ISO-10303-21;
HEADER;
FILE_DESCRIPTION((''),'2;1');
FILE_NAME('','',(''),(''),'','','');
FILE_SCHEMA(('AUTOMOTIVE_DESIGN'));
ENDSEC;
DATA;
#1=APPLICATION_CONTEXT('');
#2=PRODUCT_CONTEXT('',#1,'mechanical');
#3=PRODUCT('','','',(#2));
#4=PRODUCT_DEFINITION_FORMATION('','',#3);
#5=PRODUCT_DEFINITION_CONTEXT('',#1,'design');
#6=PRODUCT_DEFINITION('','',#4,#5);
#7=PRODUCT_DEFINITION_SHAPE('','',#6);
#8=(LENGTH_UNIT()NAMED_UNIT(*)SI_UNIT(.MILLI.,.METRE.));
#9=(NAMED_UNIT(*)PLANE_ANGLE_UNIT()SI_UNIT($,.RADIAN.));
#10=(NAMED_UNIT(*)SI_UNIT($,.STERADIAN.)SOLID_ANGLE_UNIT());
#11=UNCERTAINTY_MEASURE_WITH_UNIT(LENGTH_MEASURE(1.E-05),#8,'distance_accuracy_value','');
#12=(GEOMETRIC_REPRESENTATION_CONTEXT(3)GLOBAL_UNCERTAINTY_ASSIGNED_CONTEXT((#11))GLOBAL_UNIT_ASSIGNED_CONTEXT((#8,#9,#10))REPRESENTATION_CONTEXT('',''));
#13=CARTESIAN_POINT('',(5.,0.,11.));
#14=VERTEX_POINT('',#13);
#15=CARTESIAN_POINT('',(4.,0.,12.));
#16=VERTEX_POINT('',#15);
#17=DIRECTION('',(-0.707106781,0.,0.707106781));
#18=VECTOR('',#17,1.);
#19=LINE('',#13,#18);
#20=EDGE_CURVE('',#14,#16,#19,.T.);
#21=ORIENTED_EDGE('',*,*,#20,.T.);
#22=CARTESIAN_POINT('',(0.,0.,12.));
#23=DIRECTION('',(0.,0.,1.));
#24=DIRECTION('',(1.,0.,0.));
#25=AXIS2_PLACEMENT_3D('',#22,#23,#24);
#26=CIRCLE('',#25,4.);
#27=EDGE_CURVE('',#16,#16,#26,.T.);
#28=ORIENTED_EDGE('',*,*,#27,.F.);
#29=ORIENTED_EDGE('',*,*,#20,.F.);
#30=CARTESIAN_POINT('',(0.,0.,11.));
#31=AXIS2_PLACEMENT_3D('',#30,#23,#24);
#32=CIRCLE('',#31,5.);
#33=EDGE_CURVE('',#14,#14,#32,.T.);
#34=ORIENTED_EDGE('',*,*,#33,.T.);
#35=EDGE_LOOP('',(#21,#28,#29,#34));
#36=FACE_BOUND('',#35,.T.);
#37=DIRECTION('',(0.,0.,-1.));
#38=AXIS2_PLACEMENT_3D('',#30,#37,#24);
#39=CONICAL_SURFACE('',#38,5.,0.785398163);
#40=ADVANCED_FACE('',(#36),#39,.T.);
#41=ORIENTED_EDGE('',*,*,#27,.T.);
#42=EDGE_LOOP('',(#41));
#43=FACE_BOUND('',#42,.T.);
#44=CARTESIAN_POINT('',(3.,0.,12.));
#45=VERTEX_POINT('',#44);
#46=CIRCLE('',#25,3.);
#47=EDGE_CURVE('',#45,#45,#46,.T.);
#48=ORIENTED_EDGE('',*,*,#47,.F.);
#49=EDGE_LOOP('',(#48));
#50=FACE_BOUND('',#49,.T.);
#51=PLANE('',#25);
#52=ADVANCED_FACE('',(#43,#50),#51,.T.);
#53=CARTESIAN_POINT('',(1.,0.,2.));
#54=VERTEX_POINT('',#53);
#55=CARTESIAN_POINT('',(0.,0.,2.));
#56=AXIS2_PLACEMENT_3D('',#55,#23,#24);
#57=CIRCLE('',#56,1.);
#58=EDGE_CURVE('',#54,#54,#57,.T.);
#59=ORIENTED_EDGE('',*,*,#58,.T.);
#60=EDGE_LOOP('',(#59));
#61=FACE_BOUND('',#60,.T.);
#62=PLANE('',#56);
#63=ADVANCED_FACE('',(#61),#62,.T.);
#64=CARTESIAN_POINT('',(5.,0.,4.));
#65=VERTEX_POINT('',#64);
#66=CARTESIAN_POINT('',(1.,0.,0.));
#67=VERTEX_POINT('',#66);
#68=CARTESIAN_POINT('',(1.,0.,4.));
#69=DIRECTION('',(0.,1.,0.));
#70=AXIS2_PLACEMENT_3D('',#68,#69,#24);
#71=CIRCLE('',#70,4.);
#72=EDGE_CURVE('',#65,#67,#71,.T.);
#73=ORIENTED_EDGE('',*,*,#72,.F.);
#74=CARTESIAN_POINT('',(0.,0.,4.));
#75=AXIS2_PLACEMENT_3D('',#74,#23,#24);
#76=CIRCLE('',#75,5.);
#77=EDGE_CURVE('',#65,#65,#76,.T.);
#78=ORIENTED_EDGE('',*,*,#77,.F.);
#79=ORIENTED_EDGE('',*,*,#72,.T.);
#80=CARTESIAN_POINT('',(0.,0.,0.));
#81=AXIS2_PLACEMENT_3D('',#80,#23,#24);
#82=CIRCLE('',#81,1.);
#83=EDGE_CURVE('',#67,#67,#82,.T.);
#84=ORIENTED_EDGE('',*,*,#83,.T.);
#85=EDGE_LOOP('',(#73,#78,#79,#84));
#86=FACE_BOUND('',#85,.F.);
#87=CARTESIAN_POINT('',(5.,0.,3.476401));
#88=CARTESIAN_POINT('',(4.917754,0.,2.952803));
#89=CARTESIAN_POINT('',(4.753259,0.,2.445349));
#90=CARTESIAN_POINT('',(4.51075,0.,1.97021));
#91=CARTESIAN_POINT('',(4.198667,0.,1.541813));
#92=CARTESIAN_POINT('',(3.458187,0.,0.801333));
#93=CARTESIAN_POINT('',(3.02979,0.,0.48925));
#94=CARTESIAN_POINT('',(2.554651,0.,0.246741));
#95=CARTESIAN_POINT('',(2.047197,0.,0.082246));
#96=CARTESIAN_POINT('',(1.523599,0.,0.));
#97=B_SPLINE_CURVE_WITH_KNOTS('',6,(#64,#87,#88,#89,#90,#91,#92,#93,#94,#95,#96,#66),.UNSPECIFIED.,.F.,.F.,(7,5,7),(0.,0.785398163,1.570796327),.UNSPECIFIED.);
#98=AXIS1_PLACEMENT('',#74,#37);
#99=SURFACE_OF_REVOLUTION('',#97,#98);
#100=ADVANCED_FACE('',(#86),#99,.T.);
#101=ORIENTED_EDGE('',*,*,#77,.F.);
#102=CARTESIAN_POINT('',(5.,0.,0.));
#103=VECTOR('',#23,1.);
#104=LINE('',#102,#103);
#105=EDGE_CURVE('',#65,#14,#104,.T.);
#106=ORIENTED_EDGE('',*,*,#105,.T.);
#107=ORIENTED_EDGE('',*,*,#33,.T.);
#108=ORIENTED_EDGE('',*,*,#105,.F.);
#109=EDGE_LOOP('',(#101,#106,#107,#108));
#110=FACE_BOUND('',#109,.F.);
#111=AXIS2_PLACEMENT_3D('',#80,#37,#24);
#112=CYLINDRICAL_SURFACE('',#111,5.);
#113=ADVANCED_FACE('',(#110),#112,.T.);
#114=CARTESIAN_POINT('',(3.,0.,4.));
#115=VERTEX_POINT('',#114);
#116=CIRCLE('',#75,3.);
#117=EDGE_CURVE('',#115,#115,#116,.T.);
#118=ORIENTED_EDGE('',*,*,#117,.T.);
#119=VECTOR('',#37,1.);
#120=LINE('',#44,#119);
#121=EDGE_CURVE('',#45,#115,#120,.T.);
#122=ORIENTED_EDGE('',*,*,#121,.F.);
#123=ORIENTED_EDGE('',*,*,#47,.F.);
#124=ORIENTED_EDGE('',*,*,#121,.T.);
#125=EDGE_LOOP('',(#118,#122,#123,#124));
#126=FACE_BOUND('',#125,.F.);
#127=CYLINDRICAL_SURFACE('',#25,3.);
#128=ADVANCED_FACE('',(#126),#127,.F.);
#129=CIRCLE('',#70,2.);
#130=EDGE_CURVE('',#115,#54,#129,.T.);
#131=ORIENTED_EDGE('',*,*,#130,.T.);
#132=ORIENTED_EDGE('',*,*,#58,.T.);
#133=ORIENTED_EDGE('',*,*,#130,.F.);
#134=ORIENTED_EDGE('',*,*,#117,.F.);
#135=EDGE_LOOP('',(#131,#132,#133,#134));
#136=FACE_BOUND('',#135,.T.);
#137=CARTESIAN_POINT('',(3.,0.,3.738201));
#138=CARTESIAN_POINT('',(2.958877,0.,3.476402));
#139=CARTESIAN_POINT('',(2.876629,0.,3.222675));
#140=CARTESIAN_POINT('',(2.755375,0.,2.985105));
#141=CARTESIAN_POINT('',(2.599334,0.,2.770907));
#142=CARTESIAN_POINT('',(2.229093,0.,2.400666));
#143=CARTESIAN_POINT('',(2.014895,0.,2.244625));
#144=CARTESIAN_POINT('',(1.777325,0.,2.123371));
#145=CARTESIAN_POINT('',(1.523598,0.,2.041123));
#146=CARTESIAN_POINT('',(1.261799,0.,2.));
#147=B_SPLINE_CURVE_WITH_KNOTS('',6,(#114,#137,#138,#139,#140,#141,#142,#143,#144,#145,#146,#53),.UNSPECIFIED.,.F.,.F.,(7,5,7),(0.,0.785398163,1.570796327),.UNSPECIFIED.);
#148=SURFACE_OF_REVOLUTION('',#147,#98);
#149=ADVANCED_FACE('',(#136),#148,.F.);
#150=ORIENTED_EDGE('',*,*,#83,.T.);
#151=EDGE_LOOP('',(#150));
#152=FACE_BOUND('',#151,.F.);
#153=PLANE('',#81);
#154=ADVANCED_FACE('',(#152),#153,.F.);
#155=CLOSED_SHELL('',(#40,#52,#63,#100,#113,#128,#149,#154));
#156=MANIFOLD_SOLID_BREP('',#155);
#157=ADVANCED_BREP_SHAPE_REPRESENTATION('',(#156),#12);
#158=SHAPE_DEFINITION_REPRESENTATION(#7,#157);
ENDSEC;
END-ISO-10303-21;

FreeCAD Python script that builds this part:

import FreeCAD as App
import Part
import Sketcher
Q = App.Units.Quantity


def edges_at(feature, points):
    """Names of the edges that pass closest to the given points."""
    edges = feature.Shape.Edges
    near = lambda p: min(range(len(edges)), key=lambda i: edges[i].distToShape(Part.Vertex(*p))[0])
    return sorted({f"Edge{near(p) + 1}" for p in points})

doc = App.newDocument("Part")
body = doc.addObject("PartDesign::Body", "Body")

# Sketch on XY plane
sketch1 = body.newObject("Sketcher::SketchObject", "Sketch")
sketch1.AttachmentSupport = (doc.getObject("XY_Plane"), [""])
sketch1.MapMode = "FlatFace"
sketch1.addGeometry(Part.Circle(App.Vector(0, 0, 0), App.Vector(0, 0, 1), 5), False)
sketch1.addConstraint([
    Sketcher.Constraint("Coincident", 0, 3, -1, 1),
    Sketcher.Constraint("Diameter", 0, Q("10 mm")),
])
pad1 = body.newObject("PartDesign::Pad", "Pad")
pad1.Profile = sketch1
pad1.Length = 12

# Sketch on XY plane
sketch2 = body.newObject("Sketcher::SketchObject", "Sketch001")
sketch2.AttachmentSupport = (doc.getObject("XY_Plane"), [""])
sketch2.MapMode = "FlatFace"
sketch2.AttachmentOffset = App.Placement(App.Vector(0, 0, 12), App.Rotation())
sketch2.addGeometry(Part.Circle(App.Vector(0, 0, 0), App.Vector(0, 0, 1), 3), False)
sketch2.addConstraint([
    Sketcher.Constraint("Coincident", 0, 3, -1, 1),
    Sketcher.Constraint("Diameter", 0, Q("6 mm")),
])
pocket1 = body.newObject("PartDesign::Pocket", "Pocket")
pocket1.Profile = sketch2
pocket1.Length = 10
doc.recompute()

fillet = body.newObject("PartDesign::Fillet", "Fillet")
fillet.Base = (pocket1, edges_at(pocket1, [(-5, 0, 0)]))
fillet.Radius = 4
doc.recompute()

chamfer = body.newObject("PartDesign::Chamfer", "Chamfer")
chamfer.Base = (fillet, edges_at(fillet, [(-5, 0, 12)]))
chamfer.Size = 1
doc.recompute()

fillet2 = body.newObject("PartDesign::Fillet", "Fillet001")
fillet2.Base = (chamfer, edges_at(chamfer, [(-3, 0, 2)]))
fillet2.Radius = 2

doc.recompute()
